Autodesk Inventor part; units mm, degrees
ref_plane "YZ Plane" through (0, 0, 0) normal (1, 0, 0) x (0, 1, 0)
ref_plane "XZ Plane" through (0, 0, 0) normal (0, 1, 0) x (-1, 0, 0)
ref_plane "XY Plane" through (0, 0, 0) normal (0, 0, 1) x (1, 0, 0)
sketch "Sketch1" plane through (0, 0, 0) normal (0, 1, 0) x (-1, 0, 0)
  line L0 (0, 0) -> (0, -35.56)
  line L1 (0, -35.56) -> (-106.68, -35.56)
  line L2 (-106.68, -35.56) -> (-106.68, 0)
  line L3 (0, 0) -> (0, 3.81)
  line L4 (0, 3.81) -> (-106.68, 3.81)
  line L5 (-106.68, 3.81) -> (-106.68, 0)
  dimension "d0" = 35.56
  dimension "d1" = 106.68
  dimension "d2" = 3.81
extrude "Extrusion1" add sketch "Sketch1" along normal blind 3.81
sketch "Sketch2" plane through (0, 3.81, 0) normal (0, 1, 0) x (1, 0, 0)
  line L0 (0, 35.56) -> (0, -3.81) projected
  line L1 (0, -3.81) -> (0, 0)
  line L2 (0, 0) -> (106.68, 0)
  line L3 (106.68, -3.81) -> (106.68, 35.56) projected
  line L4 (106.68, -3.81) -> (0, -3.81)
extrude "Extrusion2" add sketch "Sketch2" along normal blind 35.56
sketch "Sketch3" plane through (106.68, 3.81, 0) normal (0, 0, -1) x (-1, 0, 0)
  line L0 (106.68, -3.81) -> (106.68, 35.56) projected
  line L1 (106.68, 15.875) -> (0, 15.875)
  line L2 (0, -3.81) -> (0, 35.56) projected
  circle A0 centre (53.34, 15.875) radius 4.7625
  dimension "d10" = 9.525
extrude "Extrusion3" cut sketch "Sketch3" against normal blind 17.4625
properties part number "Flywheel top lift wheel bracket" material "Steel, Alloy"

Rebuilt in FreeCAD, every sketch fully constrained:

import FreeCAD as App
import Part
import Sketcher
Q = App.Units.Quantity


def add_polygon(sketch, points):
    """Adds a closed chain of lines whose ends are joined by coincident constraints."""
    first, n = sketch.GeometryCount, len(points)
    for a, b in zip(points, points[1:] + points[:1]):
        sketch.addGeometry(Part.LineSegment(App.Vector(*a, 0), App.Vector(*b, 0)), False)
    for i in range(n):
        sketch.addConstraint(Sketcher.Constraint("Coincident", first + i, 2, first + (i + 1) % n, 1))

doc = App.newDocument("Part")
body = doc.addObject("PartDesign::Body", "Body")

sketch1 = body.newObject("Sketcher::SketchObject", "Sketch")
sketch1.AttachmentSupport = (doc.getObject("XZ_Plane"), [""])
sketch1.MapMode = "FlatFace"
add_polygon(sketch1, [(0, -36), (0, 4), (107, 4), (107, -36)])
sketch1.addConstraint(Sketcher.Constraint("Vertical", 0))
sketch1.addConstraint(Sketcher.Constraint("Horizontal", 1))
sketch1.addConstraint(Sketcher.Constraint("Vertical", 2))
sketch1.addConstraint(Sketcher.Constraint("Horizontal", 3))
sketch1.addConstraint(Sketcher.Constraint("PointOnObject", 0, 2, -2))
sketch1.addConstraint(Sketcher.Constraint("DistanceX", 1, 1, 1, 2, Q("4.2 in")))
sketch1.addConstraint(Sketcher.Constraint("DistanceY", 2, 2, -1, 1, Q("1.4 in")))
sketch1.addConstraint(Sketcher.Constraint("DistanceY", -1, 1, 0, 2, Q("0.15 in")))
pad1 = body.newObject("PartDesign::Pad", "Pad")
pad1.Profile = sketch1
pad1.Length = Q("0.15 in")
pad1.Reversed = True

sketch2 = body.newObject("Sketcher::SketchObject", "Sketch001")
sketch2.AttachmentSupport = (doc.getObject("XZ_Plane"), [""])
sketch2.MapMode = "FlatFace"
sketch2.AttachmentOffset = App.Placement(App.Vector(0, 0, -0.15 * 25.4), App.Rotation())
add_polygon(sketch2, [(106.7, 0), (0, 0), (0, 3.8), (106.7, 3.8)])
sketch2.addConstraint(Sketcher.Constraint("Horizontal", 0))
sketch2.addConstraint(Sketcher.Constraint("Vertical", 1))
sketch2.addConstraint(Sketcher.Constraint("Horizontal", 2))
sketch2.addConstraint(Sketcher.Constraint("Vertical", 3))
sketch2.addConstraint(Sketcher.Constraint("Coincident", 0, 2, -1, 1))
sketch2.addConstraint(Sketcher.Constraint("DistanceX", 0, 2, 0, 1, Q("4.2 in")))
sketch2.addConstraint(Sketcher.Constraint("DistanceY", 1, 1, 1, 2, Q("0.15 in")))
pad2 = body.newObject("PartDesign::Pad", "Pad001")
pad2.Profile = sketch2
pad2.Length = Q("1.4 in")
pad2.Reversed = True

sketch3 = body.newObject("Sketcher::SketchObject", "Sketch002")
sketch3.AttachmentSupport = (doc.getObject("XY_Plane"), [""])
sketch3.MapMode = "FlatFace"
sketch3.addGeometry(Part.Circle(App.Vector(53.3, 19.7, 0), App.Vector(0, 0, 1), 4.8), False)
sketch3.addConstraint(Sketcher.Constraint("Diameter", 0, Q("0.375 in")))
sketch3.addConstraint(Sketcher.Constraint("DistanceX", -1, 1, 0, 3, Q("2.1 in")))
sketch3.addConstraint(Sketcher.Constraint("DistanceY", -1, 1, 0, 3, Q("0.775 in")))
pocket1 = body.newObject("PartDesign::Pocket", "Pocket")
pocket1.Profile = sketch3
pocket1.Length = Q("0.6875 in")
pocket1.Reversed = True

doc.recompute()
